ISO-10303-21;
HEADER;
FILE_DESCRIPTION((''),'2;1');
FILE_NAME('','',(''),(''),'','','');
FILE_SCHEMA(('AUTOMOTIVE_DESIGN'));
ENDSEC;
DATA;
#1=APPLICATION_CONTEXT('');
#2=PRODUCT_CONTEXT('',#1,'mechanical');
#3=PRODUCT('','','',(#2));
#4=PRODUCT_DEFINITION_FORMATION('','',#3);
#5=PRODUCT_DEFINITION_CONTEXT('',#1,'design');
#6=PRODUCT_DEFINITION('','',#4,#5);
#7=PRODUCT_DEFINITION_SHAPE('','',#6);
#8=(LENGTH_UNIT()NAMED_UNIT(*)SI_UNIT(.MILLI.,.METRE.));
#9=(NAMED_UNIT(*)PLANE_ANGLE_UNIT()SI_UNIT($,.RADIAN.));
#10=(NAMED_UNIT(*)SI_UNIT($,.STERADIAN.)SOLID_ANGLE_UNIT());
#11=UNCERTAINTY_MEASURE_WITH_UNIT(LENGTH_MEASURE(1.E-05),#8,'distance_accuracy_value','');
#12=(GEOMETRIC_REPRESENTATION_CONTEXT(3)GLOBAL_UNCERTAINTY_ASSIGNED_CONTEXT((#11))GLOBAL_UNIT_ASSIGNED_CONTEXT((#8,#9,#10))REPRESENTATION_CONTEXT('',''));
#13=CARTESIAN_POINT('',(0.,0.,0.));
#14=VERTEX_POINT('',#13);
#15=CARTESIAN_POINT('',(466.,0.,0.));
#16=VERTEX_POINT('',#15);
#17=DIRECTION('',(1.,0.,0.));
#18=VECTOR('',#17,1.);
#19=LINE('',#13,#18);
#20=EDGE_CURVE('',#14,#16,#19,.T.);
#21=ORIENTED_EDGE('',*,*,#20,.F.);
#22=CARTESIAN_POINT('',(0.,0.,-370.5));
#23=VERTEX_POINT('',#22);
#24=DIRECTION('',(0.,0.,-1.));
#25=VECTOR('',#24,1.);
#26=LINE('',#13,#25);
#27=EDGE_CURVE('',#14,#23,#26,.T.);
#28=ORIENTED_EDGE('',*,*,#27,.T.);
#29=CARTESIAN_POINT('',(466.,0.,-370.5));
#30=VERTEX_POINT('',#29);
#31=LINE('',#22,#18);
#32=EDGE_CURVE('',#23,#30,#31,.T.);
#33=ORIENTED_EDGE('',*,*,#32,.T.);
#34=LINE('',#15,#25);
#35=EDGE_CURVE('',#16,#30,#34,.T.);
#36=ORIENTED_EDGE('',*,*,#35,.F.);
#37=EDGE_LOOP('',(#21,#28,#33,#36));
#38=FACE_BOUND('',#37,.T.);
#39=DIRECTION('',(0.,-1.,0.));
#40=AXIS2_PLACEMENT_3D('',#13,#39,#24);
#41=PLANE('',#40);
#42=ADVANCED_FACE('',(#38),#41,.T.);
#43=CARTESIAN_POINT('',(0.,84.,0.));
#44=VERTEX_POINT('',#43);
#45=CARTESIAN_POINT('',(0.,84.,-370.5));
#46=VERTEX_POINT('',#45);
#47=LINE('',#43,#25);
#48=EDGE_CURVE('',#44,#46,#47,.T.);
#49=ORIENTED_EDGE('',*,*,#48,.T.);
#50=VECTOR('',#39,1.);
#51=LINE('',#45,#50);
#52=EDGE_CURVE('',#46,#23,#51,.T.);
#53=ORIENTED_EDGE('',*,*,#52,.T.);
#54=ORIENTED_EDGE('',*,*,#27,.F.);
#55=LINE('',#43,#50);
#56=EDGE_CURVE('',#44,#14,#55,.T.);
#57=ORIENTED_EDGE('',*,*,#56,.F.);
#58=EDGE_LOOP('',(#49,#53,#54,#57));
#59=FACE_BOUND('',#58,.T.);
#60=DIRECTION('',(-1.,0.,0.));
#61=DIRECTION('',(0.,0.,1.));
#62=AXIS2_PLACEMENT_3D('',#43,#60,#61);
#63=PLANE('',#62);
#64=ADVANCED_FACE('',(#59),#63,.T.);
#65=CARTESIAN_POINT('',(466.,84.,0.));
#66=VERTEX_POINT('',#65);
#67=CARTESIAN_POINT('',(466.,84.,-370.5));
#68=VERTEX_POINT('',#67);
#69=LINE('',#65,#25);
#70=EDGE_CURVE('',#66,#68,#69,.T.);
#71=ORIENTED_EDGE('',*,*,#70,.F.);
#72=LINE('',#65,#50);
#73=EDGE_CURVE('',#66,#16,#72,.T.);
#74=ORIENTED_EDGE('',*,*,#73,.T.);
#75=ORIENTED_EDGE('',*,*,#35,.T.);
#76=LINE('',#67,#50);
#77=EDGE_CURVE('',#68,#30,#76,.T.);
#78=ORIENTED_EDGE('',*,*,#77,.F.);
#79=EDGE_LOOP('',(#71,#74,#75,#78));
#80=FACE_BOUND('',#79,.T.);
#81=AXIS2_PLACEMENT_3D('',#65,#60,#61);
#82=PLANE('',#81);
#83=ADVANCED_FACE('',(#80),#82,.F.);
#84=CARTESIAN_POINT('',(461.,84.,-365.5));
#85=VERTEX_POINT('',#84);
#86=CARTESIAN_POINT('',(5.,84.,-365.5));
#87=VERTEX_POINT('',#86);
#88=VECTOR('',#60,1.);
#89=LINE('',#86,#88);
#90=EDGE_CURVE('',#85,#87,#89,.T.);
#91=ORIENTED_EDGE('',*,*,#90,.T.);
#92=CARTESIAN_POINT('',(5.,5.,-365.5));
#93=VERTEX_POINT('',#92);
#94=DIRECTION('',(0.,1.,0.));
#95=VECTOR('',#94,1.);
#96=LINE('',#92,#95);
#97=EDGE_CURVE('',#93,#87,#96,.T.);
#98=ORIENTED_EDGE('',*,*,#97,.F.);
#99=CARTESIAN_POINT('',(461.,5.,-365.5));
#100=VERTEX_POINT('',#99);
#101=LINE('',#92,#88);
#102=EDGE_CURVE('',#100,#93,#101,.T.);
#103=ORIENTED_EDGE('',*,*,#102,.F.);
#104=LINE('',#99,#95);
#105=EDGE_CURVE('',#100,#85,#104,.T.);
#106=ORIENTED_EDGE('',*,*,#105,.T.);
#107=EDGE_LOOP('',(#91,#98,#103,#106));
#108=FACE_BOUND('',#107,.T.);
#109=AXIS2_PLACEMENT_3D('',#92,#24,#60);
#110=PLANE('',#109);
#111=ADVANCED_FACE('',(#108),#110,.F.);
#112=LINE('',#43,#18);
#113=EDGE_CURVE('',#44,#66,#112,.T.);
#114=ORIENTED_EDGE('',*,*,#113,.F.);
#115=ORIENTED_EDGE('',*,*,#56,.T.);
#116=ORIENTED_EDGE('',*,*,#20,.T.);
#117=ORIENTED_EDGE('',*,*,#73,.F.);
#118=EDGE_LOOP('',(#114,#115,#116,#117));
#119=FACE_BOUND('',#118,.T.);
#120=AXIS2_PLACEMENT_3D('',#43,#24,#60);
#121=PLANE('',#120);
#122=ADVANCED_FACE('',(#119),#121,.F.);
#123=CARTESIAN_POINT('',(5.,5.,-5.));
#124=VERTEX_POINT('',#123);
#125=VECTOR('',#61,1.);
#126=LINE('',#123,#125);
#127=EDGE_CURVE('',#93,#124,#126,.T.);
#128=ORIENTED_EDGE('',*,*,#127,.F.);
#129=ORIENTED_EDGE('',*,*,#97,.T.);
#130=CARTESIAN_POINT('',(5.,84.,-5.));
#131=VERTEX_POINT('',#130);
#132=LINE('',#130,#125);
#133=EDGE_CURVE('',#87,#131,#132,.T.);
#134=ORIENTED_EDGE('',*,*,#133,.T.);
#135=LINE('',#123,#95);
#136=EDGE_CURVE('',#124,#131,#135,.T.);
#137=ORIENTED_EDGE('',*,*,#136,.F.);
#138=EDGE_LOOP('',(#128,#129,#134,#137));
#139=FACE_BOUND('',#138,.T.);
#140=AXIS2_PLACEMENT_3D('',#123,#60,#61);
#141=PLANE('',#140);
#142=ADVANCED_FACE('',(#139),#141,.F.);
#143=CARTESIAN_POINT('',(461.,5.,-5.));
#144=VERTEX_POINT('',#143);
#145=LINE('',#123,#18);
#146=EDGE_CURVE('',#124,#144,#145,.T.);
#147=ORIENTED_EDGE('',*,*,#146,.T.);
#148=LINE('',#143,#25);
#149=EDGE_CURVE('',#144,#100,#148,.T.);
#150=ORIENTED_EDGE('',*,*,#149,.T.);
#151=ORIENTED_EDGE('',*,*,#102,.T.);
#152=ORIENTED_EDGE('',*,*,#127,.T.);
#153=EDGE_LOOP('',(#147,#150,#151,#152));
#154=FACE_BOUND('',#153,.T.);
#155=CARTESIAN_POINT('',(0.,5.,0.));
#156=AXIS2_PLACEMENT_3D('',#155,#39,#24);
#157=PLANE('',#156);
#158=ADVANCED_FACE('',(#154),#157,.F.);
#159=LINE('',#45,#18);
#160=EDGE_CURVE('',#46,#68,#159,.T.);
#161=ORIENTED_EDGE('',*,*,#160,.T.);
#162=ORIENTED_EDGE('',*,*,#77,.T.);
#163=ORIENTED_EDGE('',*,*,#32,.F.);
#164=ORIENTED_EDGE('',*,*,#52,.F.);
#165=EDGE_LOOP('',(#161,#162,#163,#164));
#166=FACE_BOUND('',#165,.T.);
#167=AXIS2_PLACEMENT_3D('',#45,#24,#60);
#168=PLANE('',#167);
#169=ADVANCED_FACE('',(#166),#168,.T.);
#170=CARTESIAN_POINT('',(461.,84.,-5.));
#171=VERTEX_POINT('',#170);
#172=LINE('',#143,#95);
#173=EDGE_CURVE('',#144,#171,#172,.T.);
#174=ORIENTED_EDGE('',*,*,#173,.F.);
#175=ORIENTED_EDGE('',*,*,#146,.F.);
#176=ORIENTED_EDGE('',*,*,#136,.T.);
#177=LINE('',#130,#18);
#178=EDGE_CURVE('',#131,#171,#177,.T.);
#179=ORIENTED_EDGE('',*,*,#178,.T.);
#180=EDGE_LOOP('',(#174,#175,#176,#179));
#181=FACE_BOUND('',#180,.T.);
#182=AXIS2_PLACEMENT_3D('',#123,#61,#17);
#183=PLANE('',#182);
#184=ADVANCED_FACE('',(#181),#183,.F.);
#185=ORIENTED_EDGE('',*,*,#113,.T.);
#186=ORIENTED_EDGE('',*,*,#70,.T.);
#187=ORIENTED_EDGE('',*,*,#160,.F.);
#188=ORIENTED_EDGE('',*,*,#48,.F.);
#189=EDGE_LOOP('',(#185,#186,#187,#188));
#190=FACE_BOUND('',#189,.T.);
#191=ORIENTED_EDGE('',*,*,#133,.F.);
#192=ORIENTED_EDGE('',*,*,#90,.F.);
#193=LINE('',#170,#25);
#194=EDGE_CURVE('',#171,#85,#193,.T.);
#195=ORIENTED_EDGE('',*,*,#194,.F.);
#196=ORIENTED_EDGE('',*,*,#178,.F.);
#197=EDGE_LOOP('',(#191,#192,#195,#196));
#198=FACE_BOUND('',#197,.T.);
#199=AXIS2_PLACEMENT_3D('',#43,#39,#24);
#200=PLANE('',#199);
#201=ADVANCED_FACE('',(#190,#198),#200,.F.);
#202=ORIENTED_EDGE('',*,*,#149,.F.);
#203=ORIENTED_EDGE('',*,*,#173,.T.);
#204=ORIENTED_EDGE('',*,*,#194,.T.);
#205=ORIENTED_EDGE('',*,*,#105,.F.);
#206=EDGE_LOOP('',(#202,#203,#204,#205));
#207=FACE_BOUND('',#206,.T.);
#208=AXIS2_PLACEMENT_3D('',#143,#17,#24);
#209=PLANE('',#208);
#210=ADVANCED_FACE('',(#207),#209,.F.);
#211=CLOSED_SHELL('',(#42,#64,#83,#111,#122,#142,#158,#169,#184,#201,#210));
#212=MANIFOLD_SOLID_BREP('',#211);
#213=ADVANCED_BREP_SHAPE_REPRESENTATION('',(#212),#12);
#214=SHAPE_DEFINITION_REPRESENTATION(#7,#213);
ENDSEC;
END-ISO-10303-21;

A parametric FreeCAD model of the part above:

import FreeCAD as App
import Part
import Sketcher
from FreeCAD import Vector
Q = App.Units.Quantity


def add_polygon(sketch, points):
    """Adds a closed chain of lines whose ends are joined by coincident constraints."""
    first, n = sketch.GeometryCount, len(points)
    for a, b in zip(points, points[1:] + points[:1]):
        sketch.addGeometry(Part.LineSegment(App.Vector(*a, 0), App.Vector(*b, 0)), False)
    for i in range(n):
        sketch.addConstraint(Sketcher.Constraint("Coincident", first + i, 2, first + (i + 1) % n, 1))

doc = App.newDocument("Part")
body = doc.addObject("PartDesign::Body", "Body")

# Sketch on XZ plane
sketch1 = body.newObject("Sketcher::SketchObject", "Sketch")
sketch1.AttachmentSupport = (doc.getObject("XZ_Plane"), [""])
sketch1.MapMode = "FlatFace"
add_polygon(sketch1, [(0, -370.5), (0, 0), (466, 0), (466, -370.5)])  # lines 0-3
sketch1.addConstraint(Sketcher.Constraint("Vertical", 0))
sketch1.addConstraint(Sketcher.Constraint("Horizontal", 1))
sketch1.addConstraint(Sketcher.Constraint("Vertical", 2))
sketch1.addConstraint(Sketcher.Constraint("Horizontal", 3))
sketch1.addConstraint(Sketcher.Constraint("Coincident", 0, 2, -1, 1))
sketch1.addConstraint(Sketcher.Constraint("DistanceX", 1, 1, 1, 2, Q("466 mm")))
sketch1.addConstraint(Sketcher.Constraint("DistanceY", 0, 1, 0, 2, Q("370.5 mm")))
pad1 = body.newObject("PartDesign::Pad", "Pad")
pad1.Profile = sketch1
pad1.Length = 84
pad1.Reversed = True

# Sketch on XZ plane
sketch2 = body.newObject("Sketcher::SketchObject", "Sketch001")
sketch2.AttachmentSupport = (doc.getObject("XZ_Plane"), [""])
sketch2.MapMode = "FlatFace"
sketch2.AttachmentOffset = App.Placement(Vector(0, 0, -84), App.Rotation())
add_polygon(sketch2, [(5, -365.5), (5, -5), (461, -5), (461, -365.5)])  # lines 0-3
sketch2.addConstraint(Sketcher.Constraint("Vertical", 0))
sketch2.addConstraint(Sketcher.Constraint("Horizontal", 1))
sketch2.addConstraint(Sketcher.Constraint("Vertical", 2))
sketch2.addConstraint(Sketcher.Constraint("Horizontal", 3))
sketch2.addConstraint(Sketcher.Constraint("DistanceX", 1, 1, 1, 2, Q("456 mm")))
sketch2.addConstraint(Sketcher.Constraint("DistanceY", 0, 1, 0, 2, Q("360.5 mm")))
sketch2.addConstraint(Sketcher.Constraint("DistanceX", -1, 1, 0, 2, Q("5 mm")))
sketch2.addConstraint(Sketcher.Constraint("DistanceY", 0, 2, -1, 1, Q("5 mm")))
pocket1 = body.newObject("PartDesign::Pocket", "Pocket")
pocket1.Profile = sketch2
pocket1.Length = 79
pocket1.Reversed = True

doc.recompute()
